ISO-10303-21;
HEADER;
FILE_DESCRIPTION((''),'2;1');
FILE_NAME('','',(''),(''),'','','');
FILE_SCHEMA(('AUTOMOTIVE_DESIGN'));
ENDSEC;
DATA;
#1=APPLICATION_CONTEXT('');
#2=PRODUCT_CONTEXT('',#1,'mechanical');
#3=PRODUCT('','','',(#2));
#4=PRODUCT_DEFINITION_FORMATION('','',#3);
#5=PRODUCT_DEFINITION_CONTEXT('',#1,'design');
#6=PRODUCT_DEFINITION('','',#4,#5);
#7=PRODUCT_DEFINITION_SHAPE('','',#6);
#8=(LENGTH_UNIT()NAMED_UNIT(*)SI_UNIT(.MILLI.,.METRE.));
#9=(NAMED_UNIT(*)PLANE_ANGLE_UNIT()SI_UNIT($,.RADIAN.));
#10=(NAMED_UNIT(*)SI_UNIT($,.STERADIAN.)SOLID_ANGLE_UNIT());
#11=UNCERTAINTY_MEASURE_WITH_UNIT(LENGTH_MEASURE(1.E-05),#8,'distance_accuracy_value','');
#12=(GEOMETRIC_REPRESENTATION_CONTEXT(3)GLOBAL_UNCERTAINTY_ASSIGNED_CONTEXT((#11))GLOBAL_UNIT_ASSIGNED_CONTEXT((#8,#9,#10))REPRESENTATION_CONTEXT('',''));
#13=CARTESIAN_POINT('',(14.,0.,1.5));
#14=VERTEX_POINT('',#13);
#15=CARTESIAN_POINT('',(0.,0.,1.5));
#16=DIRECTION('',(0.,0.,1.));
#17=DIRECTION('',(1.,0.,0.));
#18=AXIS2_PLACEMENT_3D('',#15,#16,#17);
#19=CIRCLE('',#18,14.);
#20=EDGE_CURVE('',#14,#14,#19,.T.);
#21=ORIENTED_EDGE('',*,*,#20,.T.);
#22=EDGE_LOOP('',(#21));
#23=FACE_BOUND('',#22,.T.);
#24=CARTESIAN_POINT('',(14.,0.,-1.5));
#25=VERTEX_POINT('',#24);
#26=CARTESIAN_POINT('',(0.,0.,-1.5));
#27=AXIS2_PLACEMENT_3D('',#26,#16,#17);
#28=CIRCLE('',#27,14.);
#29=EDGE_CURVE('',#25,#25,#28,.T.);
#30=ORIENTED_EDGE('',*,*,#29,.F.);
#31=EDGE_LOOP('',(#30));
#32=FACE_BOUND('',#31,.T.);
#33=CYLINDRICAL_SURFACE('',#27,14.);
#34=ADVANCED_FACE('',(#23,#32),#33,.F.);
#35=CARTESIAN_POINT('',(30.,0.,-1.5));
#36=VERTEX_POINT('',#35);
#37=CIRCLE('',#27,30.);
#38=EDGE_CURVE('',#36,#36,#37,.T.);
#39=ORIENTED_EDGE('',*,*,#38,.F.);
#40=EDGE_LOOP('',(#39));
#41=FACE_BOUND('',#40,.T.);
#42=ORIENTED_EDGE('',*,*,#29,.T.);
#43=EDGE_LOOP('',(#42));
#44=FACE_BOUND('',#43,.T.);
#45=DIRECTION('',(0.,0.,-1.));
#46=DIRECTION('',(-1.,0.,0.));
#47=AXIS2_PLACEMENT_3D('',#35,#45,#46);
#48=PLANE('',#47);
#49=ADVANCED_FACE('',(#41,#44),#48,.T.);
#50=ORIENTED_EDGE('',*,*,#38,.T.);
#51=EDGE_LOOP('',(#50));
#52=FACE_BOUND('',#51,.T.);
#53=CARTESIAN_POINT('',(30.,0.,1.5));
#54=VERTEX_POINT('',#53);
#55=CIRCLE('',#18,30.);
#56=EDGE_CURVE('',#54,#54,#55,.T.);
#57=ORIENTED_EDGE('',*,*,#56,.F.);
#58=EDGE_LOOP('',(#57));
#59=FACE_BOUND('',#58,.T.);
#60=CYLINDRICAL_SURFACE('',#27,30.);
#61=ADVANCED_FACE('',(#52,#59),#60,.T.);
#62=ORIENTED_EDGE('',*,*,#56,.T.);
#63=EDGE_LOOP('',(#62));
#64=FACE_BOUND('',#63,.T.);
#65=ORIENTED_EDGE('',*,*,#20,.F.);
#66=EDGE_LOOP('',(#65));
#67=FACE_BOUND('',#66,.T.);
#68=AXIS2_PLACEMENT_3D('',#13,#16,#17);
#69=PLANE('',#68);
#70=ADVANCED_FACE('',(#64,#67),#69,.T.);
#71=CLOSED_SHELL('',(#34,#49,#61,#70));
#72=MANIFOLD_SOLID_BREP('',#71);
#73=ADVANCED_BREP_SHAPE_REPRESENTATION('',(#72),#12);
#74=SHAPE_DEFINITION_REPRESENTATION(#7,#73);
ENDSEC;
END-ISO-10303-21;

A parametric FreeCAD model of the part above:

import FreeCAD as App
import Part
import Sketcher

doc = App.newDocument("Part")
body = doc.addObject("PartDesign::Body", "Body")

sketch1 = body.newObject("Sketcher::SketchObject", "Sketch")
sketch1.AttachmentSupport = (doc.getObject("XZ_Plane"), [""])
sketch1.MapMode = "FlatFace"
sketch1.addGeometry(Part.LineSegment(App.Vector(14, -1.5, 0), App.Vector(14, 1.5, 0)), False)
sketch1.addGeometry(Part.LineSegment(App.Vector(14, 1.5, 0), App.Vector(30, 1.5, 0)), False)
sketch1.addGeometry(Part.LineSegment(App.Vector(30, 1.5, 0), App.Vector(30, -1.5, 0)), False)
sketch1.addGeometry(Part.LineSegment(App.Vector(30, -1.5, 0), App.Vector(14, -1.5, 0)), False)
sketch1.addConstraint(Sketcher.Constraint("Coincident", 0, 2, 1, 1))
sketch1.addConstraint(Sketcher.Constraint("Coincident", 1, 2, 2, 1))
sketch1.addConstraint(Sketcher.Constraint("Coincident", 2, 2, 3, 1))
sketch1.addConstraint(Sketcher.Constraint("Coincident", 3, 2, 0, 1))
sketch1.addConstraint(Sketcher.Constraint("Vertical", 0))
sketch1.addConstraint(Sketcher.Constraint("Horizontal", 1))
sketch1.addConstraint(Sketcher.Constraint("Vertical", 2))
sketch1.addConstraint(Sketcher.Constraint("Horizontal", 3))
sketch1.addConstraint(Sketcher.Constraint("DistanceX", 1, 1, 1, 2, 16.0))
sketch1.addConstraint(Sketcher.Constraint("DistanceY", 0, 1, 0, 2, 3.0))
sketch1.addConstraint(Sketcher.Constraint("DistanceX", -1, 1, 0, 2, 14.0))
sketch1.addConstraint(Sketcher.Constraint("DistanceY", -1, 1, 0, 2, 1.5))
revolution = body.newObject("PartDesign::Revolution", "Revolution")
revolution.Profile = sketch1
revolution.ReferenceAxis = (sketch1, ["V_Axis"])
revolution.Angle = 360

doc.recompute()
